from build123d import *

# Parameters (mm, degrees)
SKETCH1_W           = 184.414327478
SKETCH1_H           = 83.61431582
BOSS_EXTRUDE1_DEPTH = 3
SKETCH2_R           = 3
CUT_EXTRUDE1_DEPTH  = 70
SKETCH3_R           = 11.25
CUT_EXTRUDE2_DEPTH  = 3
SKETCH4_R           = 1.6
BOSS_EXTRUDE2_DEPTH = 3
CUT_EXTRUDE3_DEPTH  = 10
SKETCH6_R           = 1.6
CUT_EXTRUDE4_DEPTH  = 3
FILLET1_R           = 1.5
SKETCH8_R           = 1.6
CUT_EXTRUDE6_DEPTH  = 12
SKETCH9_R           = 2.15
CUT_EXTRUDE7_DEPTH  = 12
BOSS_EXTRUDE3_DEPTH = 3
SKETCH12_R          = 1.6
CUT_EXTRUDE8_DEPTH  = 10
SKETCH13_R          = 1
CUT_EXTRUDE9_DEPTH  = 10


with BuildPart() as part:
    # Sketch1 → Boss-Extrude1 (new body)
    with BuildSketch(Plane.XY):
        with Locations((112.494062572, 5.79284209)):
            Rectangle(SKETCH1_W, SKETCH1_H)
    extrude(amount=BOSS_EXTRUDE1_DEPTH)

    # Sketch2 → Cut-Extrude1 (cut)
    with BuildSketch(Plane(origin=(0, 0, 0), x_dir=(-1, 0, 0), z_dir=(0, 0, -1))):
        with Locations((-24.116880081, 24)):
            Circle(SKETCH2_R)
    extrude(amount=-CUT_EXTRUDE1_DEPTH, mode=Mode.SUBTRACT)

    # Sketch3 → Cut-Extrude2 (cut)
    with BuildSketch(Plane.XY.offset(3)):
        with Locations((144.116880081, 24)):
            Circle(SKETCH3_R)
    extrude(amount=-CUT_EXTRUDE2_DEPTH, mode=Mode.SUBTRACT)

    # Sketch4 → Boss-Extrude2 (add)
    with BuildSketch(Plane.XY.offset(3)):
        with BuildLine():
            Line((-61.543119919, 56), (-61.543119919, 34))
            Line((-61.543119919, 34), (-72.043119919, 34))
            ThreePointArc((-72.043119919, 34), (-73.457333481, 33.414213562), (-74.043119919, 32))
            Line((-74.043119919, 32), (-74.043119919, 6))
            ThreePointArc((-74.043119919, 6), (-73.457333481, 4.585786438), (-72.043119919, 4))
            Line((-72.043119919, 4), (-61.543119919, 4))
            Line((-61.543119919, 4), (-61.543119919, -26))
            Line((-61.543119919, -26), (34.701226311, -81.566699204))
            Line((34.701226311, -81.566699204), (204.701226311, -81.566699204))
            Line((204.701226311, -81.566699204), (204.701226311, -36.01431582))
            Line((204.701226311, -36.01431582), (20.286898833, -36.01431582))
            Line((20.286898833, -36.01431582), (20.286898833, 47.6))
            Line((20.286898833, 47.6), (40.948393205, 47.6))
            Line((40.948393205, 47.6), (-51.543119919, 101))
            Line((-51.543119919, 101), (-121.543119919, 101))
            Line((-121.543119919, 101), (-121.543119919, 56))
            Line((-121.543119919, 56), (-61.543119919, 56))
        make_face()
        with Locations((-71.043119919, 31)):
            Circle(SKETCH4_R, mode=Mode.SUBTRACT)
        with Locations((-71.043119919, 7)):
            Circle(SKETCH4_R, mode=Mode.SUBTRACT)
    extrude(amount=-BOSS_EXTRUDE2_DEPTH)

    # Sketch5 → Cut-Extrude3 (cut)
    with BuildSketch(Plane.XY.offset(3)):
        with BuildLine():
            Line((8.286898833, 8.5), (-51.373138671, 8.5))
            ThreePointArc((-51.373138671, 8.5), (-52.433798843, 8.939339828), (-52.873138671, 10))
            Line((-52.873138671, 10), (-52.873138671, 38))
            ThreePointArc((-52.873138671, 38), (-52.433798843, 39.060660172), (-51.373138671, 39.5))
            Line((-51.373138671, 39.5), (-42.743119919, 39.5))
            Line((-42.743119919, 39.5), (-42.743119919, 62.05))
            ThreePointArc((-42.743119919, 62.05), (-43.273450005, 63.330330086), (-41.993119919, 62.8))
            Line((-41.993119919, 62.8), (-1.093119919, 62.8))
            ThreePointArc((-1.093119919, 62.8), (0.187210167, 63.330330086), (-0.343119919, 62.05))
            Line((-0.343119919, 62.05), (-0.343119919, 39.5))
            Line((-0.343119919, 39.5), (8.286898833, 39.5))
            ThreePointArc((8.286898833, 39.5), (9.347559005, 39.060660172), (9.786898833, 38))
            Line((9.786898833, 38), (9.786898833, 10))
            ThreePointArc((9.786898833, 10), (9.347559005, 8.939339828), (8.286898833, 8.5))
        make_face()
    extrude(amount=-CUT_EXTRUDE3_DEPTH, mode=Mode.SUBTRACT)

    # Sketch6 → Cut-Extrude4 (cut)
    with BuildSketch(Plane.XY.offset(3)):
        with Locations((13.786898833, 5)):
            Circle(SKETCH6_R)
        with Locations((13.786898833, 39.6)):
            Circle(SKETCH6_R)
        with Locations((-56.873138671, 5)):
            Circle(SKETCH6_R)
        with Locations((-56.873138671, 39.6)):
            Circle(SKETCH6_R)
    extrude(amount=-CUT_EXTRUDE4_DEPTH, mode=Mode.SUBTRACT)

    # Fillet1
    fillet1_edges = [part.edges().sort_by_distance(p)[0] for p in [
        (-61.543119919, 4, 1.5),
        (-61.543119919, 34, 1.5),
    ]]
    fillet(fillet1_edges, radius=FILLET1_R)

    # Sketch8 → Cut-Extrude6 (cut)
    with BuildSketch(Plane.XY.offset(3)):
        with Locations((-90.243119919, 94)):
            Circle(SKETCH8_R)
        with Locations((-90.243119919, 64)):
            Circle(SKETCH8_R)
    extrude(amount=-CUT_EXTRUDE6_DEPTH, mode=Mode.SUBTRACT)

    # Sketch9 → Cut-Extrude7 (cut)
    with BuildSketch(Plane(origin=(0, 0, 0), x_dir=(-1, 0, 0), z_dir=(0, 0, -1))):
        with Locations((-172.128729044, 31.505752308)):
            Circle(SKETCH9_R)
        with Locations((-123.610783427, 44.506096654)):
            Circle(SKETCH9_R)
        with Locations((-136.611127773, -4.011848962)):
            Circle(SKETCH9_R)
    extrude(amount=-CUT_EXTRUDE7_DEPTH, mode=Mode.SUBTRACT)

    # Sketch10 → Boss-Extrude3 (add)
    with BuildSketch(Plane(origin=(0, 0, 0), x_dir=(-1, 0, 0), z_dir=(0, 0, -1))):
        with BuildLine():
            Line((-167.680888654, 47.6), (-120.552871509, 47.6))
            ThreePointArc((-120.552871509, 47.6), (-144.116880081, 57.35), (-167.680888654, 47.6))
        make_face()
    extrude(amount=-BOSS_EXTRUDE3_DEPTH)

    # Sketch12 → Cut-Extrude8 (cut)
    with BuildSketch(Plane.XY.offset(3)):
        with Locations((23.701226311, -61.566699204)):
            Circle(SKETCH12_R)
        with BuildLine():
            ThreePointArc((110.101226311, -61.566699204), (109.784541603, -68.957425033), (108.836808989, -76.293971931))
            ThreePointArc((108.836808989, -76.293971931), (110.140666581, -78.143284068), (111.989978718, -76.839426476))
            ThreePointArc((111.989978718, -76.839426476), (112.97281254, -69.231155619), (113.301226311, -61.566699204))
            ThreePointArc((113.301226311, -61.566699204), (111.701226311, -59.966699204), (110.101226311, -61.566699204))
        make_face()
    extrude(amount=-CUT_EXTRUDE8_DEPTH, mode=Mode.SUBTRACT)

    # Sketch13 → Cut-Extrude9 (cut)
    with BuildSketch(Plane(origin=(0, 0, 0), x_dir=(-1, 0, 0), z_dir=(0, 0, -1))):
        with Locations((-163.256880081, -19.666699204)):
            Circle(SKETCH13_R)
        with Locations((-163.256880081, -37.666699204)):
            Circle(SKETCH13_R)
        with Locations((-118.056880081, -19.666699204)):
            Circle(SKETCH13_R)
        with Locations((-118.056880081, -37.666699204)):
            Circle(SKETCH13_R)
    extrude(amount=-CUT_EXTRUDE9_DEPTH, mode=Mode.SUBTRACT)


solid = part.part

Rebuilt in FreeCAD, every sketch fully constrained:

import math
import FreeCAD as App
import Part
import Sketcher
Q = App.Units.Quantity


def edges_at(feature, points):
    """Names of the edges that pass closest to the given points."""
    edges = feature.Shape.Edges
    near = lambda p: min(range(len(edges)), key=lambda i: edges[i].distToShape(Part.Vertex(*p))[0])
    return sorted({f"Edge{near(p) + 1}" for p in points})


def add_polygon(sketch, points):
    """Adds a closed chain of lines whose ends are joined by coincident constraints."""
    first, n = sketch.GeometryCount, len(points)
    for a, b in zip(points, points[1:] + points[:1]):
        sketch.addGeometry(Part.LineSegment(App.Vector(*a, 0), App.Vector(*b, 0)), False)
    for i in range(n):
        sketch.addConstraint(Sketcher.Constraint("Coincident", first + i, 2, first + (i + 1) % n, 1))

doc = App.newDocument("Part")
body = doc.addObject("PartDesign::Body", "Body")

sketch1 = body.newObject("Sketcher::SketchObject", "Sketch")
sketch1.AttachmentSupport = (doc.getObject("XY_Plane"), [""])
sketch1.MapMode = "FlatFace"
add_polygon(sketch1, [(20.286899, 47.6), (20.286899, -36.014316), (204.701226, -36.014316), (204.701226, 47.6)])
sketch1.addConstraint([
    Sketcher.Constraint("Vertical", 0),
    Sketcher.Constraint("Horizontal", 1),
    Sketcher.Constraint("Vertical", 2),
    Sketcher.Constraint("Horizontal", 3),
    Sketcher.Constraint("DistanceY", -1, 1, 2, 2, 47.6),
    Sketcher.Constraint("DistanceX", -1, 1, 0, 2, 20.286899),
    Sketcher.Constraint("DistanceX", 1, 1, 1, 2, 184.414327),
    Sketcher.Constraint("DistanceY", 0, 2, 0, 1, 83.614316),
])
pad1 = body.newObject("PartDesign::Pad", "Pad")
pad1.Profile = sketch1
pad1.Length = 3

sketch2 = body.newObject("Sketcher::SketchObject", "Sketch001")
sketch2.AttachmentSupport = (doc.getObject("XY_Plane"), [""])
sketch2.MapMode = "FlatFace"
sketch2.addGeometry(Part.Circle(App.Vector(24.11688, 24, 0), App.Vector(0, 0, 1), 3), False)
sketch2.addConstraint([
    Sketcher.Constraint("Diameter", 0, 6.0),
    Sketcher.Constraint("DistanceY", -1, 1, 0, 3, 24.0),
    Sketcher.Constraint("DistanceX", -1, 1, 0, 3, 24.11688),
])
pocket1 = body.newObject("PartDesign::Pocket", "Pocket")
pocket1.Profile = sketch2
pocket1.Length = 70
pocket1.Reversed = True

sketch3 = body.newObject("Sketcher::SketchObject", "Sketch002")
sketch3.AttachmentSupport = (doc.getObject("XY_Plane"), [""])
sketch3.MapMode = "FlatFace"
sketch3.AttachmentOffset = App.Placement(App.Vector(0, 0, 3), App.Rotation())
sketch3.addGeometry(Part.Circle(App.Vector(144.11688, 24, 0), App.Vector(0, 0, 1), 11.25), False)
sketch3.addConstraint([
    Sketcher.Constraint("Diameter", 0, 22.5),
    Sketcher.Constraint("DistanceY", -1, 1, 0, 3, 24.0),
    Sketcher.Constraint("DistanceX", -1, 1, 0, 3, 144.11688),
])
pocket2 = body.newObject("PartDesign::Pocket", "Pocket001")
pocket2.Profile = sketch3
pocket2.Length = 3

sketch4 = body.newObject("Sketcher::SketchObject", "Sketch003")
sketch4.AttachmentSupport = (doc.getObject("XY_Plane"), [""])
sketch4.MapMode = "FlatFace"
sketch4.AttachmentOffset = App.Placement(App.Vector(0, 0, 3), App.Rotation())
sketch4.addGeometry([
    Part.LineSegment(App.Vector(-61.54312, 56, 0), App.Vector(-61.54312, 34, 0)),
    Part.LineSegment(App.Vector(-61.54312, 34, 0), App.Vector(-72.04312, 34, 0)),
    Part.ArcOfCircle(Part.Circle(App.Vector(-72.04312, 32, 0), App.Vector(0, 0, 1), 2), math.radians(90), math.radians(180)),
    Part.LineSegment(App.Vector(-74.04312, 32, 0), App.Vector(-74.04312, 6, 0)),
    Part.ArcOfCircle(Part.Circle(App.Vector(-72.04312, 6, 0), App.Vector(0, 0, 1), 2), math.radians(-180), math.radians(-90)),
    Part.LineSegment(App.Vector(-72.04312, 4, 0), App.Vector(-61.54312, 4, 0)),
    Part.LineSegment(App.Vector(-61.54312, 4, 0), App.Vector(-61.54312, -26, 0)),
    Part.LineSegment(App.Vector(-61.54312, -26, 0), App.Vector(34.701226, -81.566699, 0)),
    Part.LineSegment(App.Vector(34.701226, -81.566699, 0), App.Vector(204.701226, -81.566699, 0)),
    Part.LineSegment(App.Vector(204.701226, -81.566699, 0), App.Vector(204.701226, -36.014316, 0)),
    Part.LineSegment(App.Vector(204.701226, -36.014316, 0), App.Vector(20.286899, -36.014316, 0)),
    Part.LineSegment(App.Vector(20.286899, -36.014316, 0), App.Vector(20.286899, 47.6, 0)),
    Part.LineSegment(App.Vector(20.286899, 47.6, 0), App.Vector(40.948393, 47.6, 0)),
    Part.LineSegment(App.Vector(40.948393, 47.6, 0), App.Vector(-51.54312, 101, 0)),
    Part.LineSegment(App.Vector(-51.54312, 101, 0), App.Vector(-121.54312, 101, 0)),
    Part.LineSegment(App.Vector(-121.54312, 101, 0), App.Vector(-121.54312, 56, 0)),
    Part.LineSegment(App.Vector(-121.54312, 56, 0), App.Vector(-61.54312, 56, 0)),
    Part.Circle(App.Vector(-71.04312, 7, 0), App.Vector(0, 0, 1), 1.6),
    Part.Circle(App.Vector(-71.04312, 31, 0), App.Vector(0, 0, 1), 1.6),
], False)
sketch4.addConstraint([
    Sketcher.Constraint("Coincident", 0, 2, 1, 1),
    Sketcher.Constraint("Tangent", 1, 2, 2, 1),
    Sketcher.Constraint("Tangent", 2, 2, 3, 1),
    Sketcher.Constraint("Tangent", 3, 2, 4, 1),
    Sketcher.Constraint("Tangent", 4, 2, 5, 1),
    Sketcher.Constraint("Coincident", 5, 2, 6, 1),
    Sketcher.Constraint("Coincident", 6, 2, 7, 1),
    Sketcher.Constraint("Coincident", 7, 2, 8, 1),
    Sketcher.Constraint("Coincident", 8, 2, 9, 1),
    Sketcher.Constraint("Coincident", 9, 2, 10, 1),
    Sketcher.Constraint("Coincident", 10, 2, 11, 1),
    Sketcher.Constraint("Coincident", 11, 2, 12, 1),
    Sketcher.Constraint("Coincident", 12, 2, 13, 1),
    Sketcher.Constraint("Coincident", 13, 2, 14, 1),
    Sketcher.Constraint("Coincident", 14, 2, 15, 1),
    Sketcher.Constraint("Coincident", 15, 2, 16, 1),
    Sketcher.Constraint("Coincident", 16, 2, 0, 1),
    Sketcher.Constraint("Vertical", 0),
    Sketcher.Constraint("Horizontal", 1),
    Sketcher.Constraint("Vertical", 3),
    Sketcher.Constraint("Horizontal", 5),
    Sketcher.Constraint("Vertical", 6),
    Sketcher.Constraint("Horizontal", 8),
    Sketcher.Constraint("Vertical", 9),
    Sketcher.Constraint("Horizontal", 10),
    Sketcher.Constraint("Vertical", 11),
    Sketcher.Constraint("Horizontal", 12),
    Sketcher.Constraint("Horizontal", 14),
    Sketcher.Constraint("Vertical", 15),
    Sketcher.Constraint("Horizontal", 16),
    Sketcher.Constraint("Equal", 2, 4),
    Sketcher.Constraint("Equal", 17, 18),
    Sketcher.Constraint("Parallel", 7, 13),
    Sketcher.Constraint("Vertical", 17, 3, 18, 3),
    Sketcher.Constraint("Vertical", 0, 2, 5, 2),
    Sketcher.Constraint("Radius", 2, 2.0),
    Sketcher.Constraint("Diameter", 17, 3.2),
    Sketcher.Constraint("DistanceX", 8, 1, 8, 2, 170.0),
    Sketcher.Constraint("DistanceX", 14, 2, 14, 1, 70.0),
    Sketcher.Constraint("DistanceX", 16, 1, 16, 2, 60.0),
    Sketcher.Constraint("DistanceY", 0, 2, 0, 1, 22.0),
    Sketcher.Constraint("DistanceY", 3, 2, 3, 1, 26.0),
    Sketcher.Constraint("DistanceY", 6, 2, 6, 1, 30.0),
    Sketcher.Constraint("DistanceY", 15, 2, 15, 1, 45.0),
    Sketcher.Constraint("Angle", 7, Q("-30 deg")),
    Sketcher.Constraint("DistanceX", 1, 2, 1, 1, 10.5),
    Sketcher.Constraint("DistanceY", -1, 1, 2, 3, 32.0),
    Sketcher.Constraint("DistanceY", -1, 1, 17, 3, 7.0),
    Sketcher.Constraint("DistanceY", -1, 1, 18, 3, 31.0),
    Sketcher.Constraint("DistanceX", 4, 3, 17, 3, 1.0),
    Sketcher.Constraint("Distance", 13, 106.8),
    Sketcher.Constraint("Distance", 7, 111.133398),
    Sketcher.Constraint("DistanceX", -1, 1, 10, 2, 20.286899),
    Sketcher.Constraint("DistanceX", 10, 2, 10, 1, 184.414327),
    Sketcher.Constraint("DistanceY", 9, 1, 9, 2, 45.552383),
])
pad2 = body.newObject("PartDesign::Pad", "Pad001")
pad2.Profile = sketch4
pad2.Length = 3
pad2.Reversed = True

sketch5 = body.newObject("Sketcher::SketchObject", "Sketch004")
sketch5.AttachmentSupport = (doc.getObject("XY_Plane"), [""])
sketch5.MapMode = "FlatFace"
sketch5.AttachmentOffset = App.Placement(App.Vector(0, 0, 3), App.Rotation())
sketch5.addGeometry([
    Part.LineSegment(App.Vector(-51.373139, 8.5, 0), App.Vector(8.286899, 8.5, 0)),
    Part.ArcOfCircle(Part.Circle(App.Vector(8.286899, 10, 0), App.Vector(0, 0, 1), 1.5), math.radians(-90), math.radians(0)),
    Part.LineSegment(App.Vector(9.786899, 10, 0), App.Vector(9.786899, 38, 0)),
    Part.ArcOfCircle(Part.Circle(App.Vector(8.286899, 38, 0), App.Vector(0, 0, 1), 1.5), math.radians(0), math.radians(90)),
    Part.LineSegment(App.Vector(8.286899, 39.5, 0), App.Vector(-0.34312, 39.5, 0)),
    Part.LineSegment(App.Vector(-0.34312, 39.5, 0), App.Vector(-0.34312, 62.05, 0)),
    Part.ArcOfCircle(Part.Circle(App.Vector(-0.34312, 62.8, 0), App.Vector(0, 0, 1), 0.75), math.radians(-90), math.radians(180)),
    Part.LineSegment(App.Vector(-1.09312, 62.8, 0), App.Vector(-41.99312, 62.8, 0)),
    Part.ArcOfCircle(Part.Circle(App.Vector(-42.74312, 62.8, 0), App.Vector(0, 0, 1), 0.75), math.radians(0), math.radians(270)),
    Part.LineSegment(App.Vector(-42.74312, 62.05, 0), App.Vector(-42.74312, 39.5, 0)),
    Part.LineSegment(App.Vector(-42.74312, 39.5, 0), App.Vector(-51.373139, 39.5, 0)),
    Part.ArcOfCircle(Part.Circle(App.Vector(-51.373139, 38, 0), App.Vector(0, 0, 1), 1.5), math.radians(90), math.radians(180)),
    Part.LineSegment(App.Vector(-52.873139, 38, 0), App.Vector(-52.873139, 10, 0)),
    Part.ArcOfCircle(Part.Circle(App.Vector(-51.373139, 10, 0), App.Vector(0, 0, 1), 1.5), math.radians(180), math.radians(270)),
], False)
sketch5.addConstraint([
    Sketcher.Constraint("Tangent", 0, 2, 1, 1),
    Sketcher.Constraint("Tangent", 1, 2, 2, 1),
    Sketcher.Constraint("Tangent", 2, 2, 3, 1),
    Sketcher.Constraint("Tangent", 3, 2, 4, 1),
    Sketcher.Constraint("Coincident", 4, 2, 5, 1),
    Sketcher.Constraint("Coincident", 5, 2, 6, 1),
    Sketcher.Constraint("Coincident", 6, 2, 7, 1),
    Sketcher.Constraint("Coincident", 7, 2, 8, 1),
    Sketcher.Constraint("Coincident", 8, 2, 9, 1),
    Sketcher.Constraint("Coincident", 9, 2, 10, 1),
    Sketcher.Constraint("Tangent", 10, 2, 11, 1),
    Sketcher.Constraint("Tangent", 11, 2, 12, 1),
    Sketcher.Constraint("Tangent", 12, 2, 13, 1),
    Sketcher.Constraint("Tangent", 13, 2, 0, 1),
    Sketcher.Constraint("Horizontal", 0),
    Sketcher.Constraint("Vertical", 2),
    Sketcher.Constraint("Horizontal", 4),
    Sketcher.Constraint("Vertical", 5),
    Sketcher.Constraint("Horizontal", 7),
    Sketcher.Constraint("Vertical", 9),
    Sketcher.Constraint("Horizontal", 10),
    Sketcher.Constraint("Vertical", 12),
    Sketcher.Constraint("Equal", 1, 3),
    Sketcher.Constraint("Equal", 6, 8),
    Sketcher.Constraint("Equal", 3, 11),
    Sketcher.Constraint("Equal", 11, 13),
    Sketcher.Constraint("Horizontal", 6, 3, 8, 3),
    Sketcher.Constraint("Horizontal", 3, 3, 11, 3),
    Sketcher.Constraint("Horizontal", 8, 3, 6, 2),
    Sketcher.Constraint("Vertical", 6, 3, 4, 2),
    Sketcher.Constraint("Equal", 4, 10),
    Sketcher.Constraint("Radius", 1, 1.5),
    Sketcher.Constraint("DistanceY", 2, 1, 2, 2, 28.0),
    Sketcher.Constraint("Radius", 6, 0.75),
    Sketcher.Constraint("DistanceX", 7, 2, 7, 1, 40.9),
    Sketcher.Constraint("DistanceY", -1, 1, 1, 3, 10.0),
    Sketcher.Constraint("DistanceY", 5, 1, 5, 2, 22.55),
    Sketcher.Constraint("DistanceX", 8, 2, 5, 2, 42.4),
    Sketcher.Constraint("DistanceX", 4, 2, 4, 1, 8.630019),
    Sketcher.Constraint("DistanceX", -1, 1, 1, 3, 8.286899),
])
pocket3 = body.newObject("PartDesign::Pocket", "Pocket002")
pocket3.Profile = sketch5
pocket3.Length = 10

sketch6 = body.newObject("Sketcher::SketchObject", "Sketch005")
sketch6.AttachmentSupport = (doc.getObject("XY_Plane"), [""])
sketch6.MapMode = "FlatFace"
sketch6.AttachmentOffset = App.Placement(App.Vector(0, 0, 3), App.Rotation())
sketch6.addGeometry([
    Part.Circle(App.Vector(13.786899, 5, 0), App.Vector(0, 0, 1), 1.6),
    Part.Circle(App.Vector(13.786899, 39.6, 0), App.Vector(0, 0, 1), 1.6),
    Part.Circle(App.Vector(-56.873139, 5, 0), App.Vector(0, 0, 1), 1.6),
    Part.Circle(App.Vector(-56.873139, 39.6, 0), App.Vector(0, 0, 1), 1.6),
], False)
sketch6.addConstraint([
    Sketcher.Constraint("Equal", 0, 1),
    Sketcher.Constraint("Equal", 1, 2),
    Sketcher.Constraint("Equal", 2, 3),
    Sketcher.Constraint("Horizontal", 0, 3, 2, 3),
    Sketcher.Constraint("Horizontal", 1, 3, 3, 3),
    Sketcher.Constraint("Vertical", 0, 3, 1, 3),
    Sketcher.Constraint("Vertical", 2, 3, 3, 3),
    Sketcher.Constraint("Diameter", 0, 3.2),
    Sketcher.Constraint("DistanceY", -1, 1, 0, 3, 5.0),
    Sketcher.Constraint("DistanceY", -1, 1, 1, 3, 39.6),
    Sketcher.Constraint("DistanceX", -1, 1, 0, 3, 13.786899),
    Sketcher.Constraint("DistanceX", 2, 3, -1, 1, 56.873139),
])
pocket4 = body.newObject("PartDesign::Pocket", "Pocket003")
pocket4.Profile = sketch6
pocket4.Length = 3
doc.recompute()

fillet = body.newObject("PartDesign::Fillet", "Fillet")
fillet.Base = (pocket4, edges_at(pocket4, [(-61.543, 4, 1.5), (-61.543, 34, 1.5)]))
fillet.Radius = 1.5

sketch7 = body.newObject("Sketcher::SketchObject", "Sketch006")
sketch7.AttachmentSupport = (doc.getObject("XY_Plane"), [""])
sketch7.MapMode = "FlatFace"
sketch7.AttachmentOffset = App.Placement(App.Vector(0, 0, 3), App.Rotation())
sketch7.addGeometry([
    Part.Circle(App.Vector(-90.24312, 94, 0), App.Vector(0, 0, 1), 1.6),
    Part.Circle(App.Vector(-90.24312, 64, 0), App.Vector(0, 0, 1), 1.6),
], False)
sketch7.addConstraint([
    Sketcher.Constraint("Equal", 0, 1),
    Sketcher.Constraint("Vertical", 0, 3, 1, 3),
    Sketcher.Constraint("Diameter", 0, 3.2),
    Sketcher.Constraint("DistanceY", -1, 1, 0, 3, 94.0),
    Sketcher.Constraint("DistanceY", -1, 1, 1, 3, 64.0),
    Sketcher.Constraint("DistanceX", 0, 3, -1, 1, 90.24312),
])
pocket5 = body.newObject("PartDesign::Pocket", "Pocket004")
pocket5.Profile = sketch7
pocket5.Length = 12

sketch8 = body.newObject("Sketcher::SketchObject", "Sketch007")
sketch8.AttachmentSupport = (doc.getObject("XY_Plane"), [""])
sketch8.MapMode = "FlatFace"
sketch8.addGeometry([
    Part.Circle(App.Vector(172.128729, 31.505752, 0), App.Vector(0, 0, 1), 2.15),
    Part.Circle(App.Vector(123.610783, 44.506097, 0), App.Vector(0, 0, 1), 2.15),
    Part.Circle(App.Vector(136.611128, -4.011849, 0), App.Vector(0, 0, 1), 2.15),
], False)
sketch8.addConstraint([
    Sketcher.Constraint("Equal", 0, 1),
    Sketcher.Constraint("Equal", 1, 2),
    Sketcher.Constraint("Diameter", 0, 4.3),
    Sketcher.Constraint("DistanceX", 2, 3, 0, 3, 35.517601),
    Sketcher.Constraint("DistanceY", 2, 3, 0, 3, 35.517601),
    Sketcher.Constraint("DistanceX", -1, 1, 0, 3, 172.128729),
    Sketcher.Constraint("DistanceY", 2, 3, -1, 1, 4.011849),
    Sketcher.Constraint("DistanceX", -1, 1, 1, 3, 123.610783),
    Sketcher.Constraint("DistanceY", -1, 1, 1, 3, 44.506097),
])
pocket6 = body.newObject("PartDesign::Pocket", "Pocket005")
pocket6.Profile = sketch8
pocket6.Length = 12
pocket6.Reversed = True

sketch9 = body.newObject("Sketcher::SketchObject", "Sketch008")
sketch9.AttachmentSupport = (doc.getObject("XY_Plane"), [""])
sketch9.MapMode = "FlatFace"
sketch9.addGeometry([
    Part.LineSegment(App.Vector(167.680889, 47.6, 0), App.Vector(120.552872, 47.6, 0)),
    Part.ArcOfCircle(Part.Circle(App.Vector(144.11688, 24, 0), App.Vector(0, 0, 1), 33.35), math.radians(45.043723), math.radians(134.956277)),
], False)
sketch9.addConstraint([
    Sketcher.Constraint("Coincident", 0, 1, 1, 1),
    Sketcher.Constraint("Coincident", 1, 2, 0, 2),
    Sketcher.Constraint("Horizontal", 0),
    Sketcher.Constraint("Radius", 1, 33.35),
    Sketcher.Constraint("DistanceY", -1, 1, 1, 3, 24.0),
    Sketcher.Constraint("DistanceY", -1, 1, 0, 1, 47.6),
    Sketcher.Constraint("DistanceX", -1, 1, 1, 3, 144.11688),
])
pad3 = body.newObject("PartDesign::Pad", "Pad002")
pad3.Profile = sketch9
pad3.Length = 3

sketch10 = body.newObject("Sketcher::SketchObject", "Sketch009")
sketch10.AttachmentSupport = (doc.getObject("XY_Plane"), [""])
sketch10.MapMode = "FlatFace"
sketch10.AttachmentOffset = App.Placement(App.Vector(0, 0, 3), App.Rotation())
sketch10.addGeometry([
    Part.Circle(App.Vector(23.701226, -61.566699, 0), App.Vector(0, 0, 1), 1.6),
    Part.ArcOfCircle(Part.Circle(App.Vector(23.701226, -61.566699, 0), App.Vector(0, 0, 1), 86.4), math.radians(-9.814248), math.radians(0)),
    Part.ArcOfCircle(Part.Circle(App.Vector(110.413394, -76.566699, 0), App.Vector(0, 0, 1), 1.6), math.radians(170.185752), math.radians(350.185752)),
    Part.ArcOfCircle(Part.Circle(App.Vector(23.701226, -61.566699, 0), App.Vector(0, 0, 1), 89.6), math.radians(-9.814248), math.radians(0)),
    Part.ArcOfCircle(Part.Circle(App.Vector(111.701226, -61.566699, 0), App.Vector(0, 0, 1), 1.6), math.radians(0), math.radians(180)),
], False)
sketch10.addConstraint([
    Sketcher.Constraint("Tangent", 1, 1, 2, 1),
    Sketcher.Constraint("Tangent", 2, 2, 3, 1),
    Sketcher.Constraint("Tangent", 3, 2, 4, 1),
    Sketcher.Constraint("Tangent", 4, 2, 1, 2),
    Sketcher.Constraint("Coincident", 1, 3, 0, 3),
    Sketcher.Constraint("Coincident", 3, 3, 0, 3),
    Sketcher.Constraint("Equal", 0, 2),
    Sketcher.Constraint("Horizontal", 3, 3, 4, 3),
    Sketcher.Constraint("Diameter", 0, 3.2),
    Sketcher.Constraint("Radius", 1, 86.4),
    Sketcher.Constraint("DistanceY", 2, 3, 0, 3, 15.0),
    Sketcher.Constraint("DistanceY", 0, 3, -1, 1, 61.566699),
    Sketcher.Constraint("DistanceX", -1, 1, 1, 1, 108.836809),
])
pocket7 = body.newObject("PartDesign::Pocket", "Pocket006")
pocket7.Profile = sketch10
pocket7.Length = 10

sketch11 = body.newObject("Sketcher::SketchObject", "Sketch010")
sketch11.AttachmentSupport = (doc.getObject("XY_Plane"), [""])
sketch11.MapMode = "FlatFace"
sketch11.addGeometry([
    Part.Circle(App.Vector(163.25688, -19.666699, 0), App.Vector(0, 0, 1), 1),
    Part.Circle(App.Vector(163.25688, -37.666699, 0), App.Vector(0, 0, 1), 1),
    Part.Circle(App.Vector(118.05688, -19.666699, 0), App.Vector(0, 0, 1), 1),
    Part.Circle(App.Vector(118.05688, -37.666699, 0), App.Vector(0, 0, 1), 1),
], False)
sketch11.addConstraint([
    Sketcher.Constraint("Equal", 0, 1),
    Sketcher.Constraint("Equal", 1, 2),
    Sketcher.Constraint("Equal", 2, 3),
    Sketcher.Constraint("Horizontal", 0, 3, 2, 3),
    Sketcher.Constraint("Horizontal", 1, 3, 3, 3),
    Sketcher.Constraint("Vertical", 0, 3, 1, 3),
    Sketcher.Constraint("Vertical", 2, 3, 3, 3),
    Sketcher.Constraint("Diameter", 0, 2.0),
    Sketcher.Constraint("DistanceY", 1, 3, 0, 3, 18.0),
    Sketcher.Constraint("DistanceX", 2, 3, 0, 3, 45.2),
    Sketcher.Constraint("DistanceY", 0, 3, -1, 1, 19.666699),
    Sketcher.Constraint("DistanceX", -1, 1, 0, 3, 163.25688),
])
pocket8 = body.newObject("PartDesign::Pocket", "Pocket007")
pocket8.Profile = sketch11
pocket8.Length = 10
pocket8.Reversed = True

doc.recompute()
